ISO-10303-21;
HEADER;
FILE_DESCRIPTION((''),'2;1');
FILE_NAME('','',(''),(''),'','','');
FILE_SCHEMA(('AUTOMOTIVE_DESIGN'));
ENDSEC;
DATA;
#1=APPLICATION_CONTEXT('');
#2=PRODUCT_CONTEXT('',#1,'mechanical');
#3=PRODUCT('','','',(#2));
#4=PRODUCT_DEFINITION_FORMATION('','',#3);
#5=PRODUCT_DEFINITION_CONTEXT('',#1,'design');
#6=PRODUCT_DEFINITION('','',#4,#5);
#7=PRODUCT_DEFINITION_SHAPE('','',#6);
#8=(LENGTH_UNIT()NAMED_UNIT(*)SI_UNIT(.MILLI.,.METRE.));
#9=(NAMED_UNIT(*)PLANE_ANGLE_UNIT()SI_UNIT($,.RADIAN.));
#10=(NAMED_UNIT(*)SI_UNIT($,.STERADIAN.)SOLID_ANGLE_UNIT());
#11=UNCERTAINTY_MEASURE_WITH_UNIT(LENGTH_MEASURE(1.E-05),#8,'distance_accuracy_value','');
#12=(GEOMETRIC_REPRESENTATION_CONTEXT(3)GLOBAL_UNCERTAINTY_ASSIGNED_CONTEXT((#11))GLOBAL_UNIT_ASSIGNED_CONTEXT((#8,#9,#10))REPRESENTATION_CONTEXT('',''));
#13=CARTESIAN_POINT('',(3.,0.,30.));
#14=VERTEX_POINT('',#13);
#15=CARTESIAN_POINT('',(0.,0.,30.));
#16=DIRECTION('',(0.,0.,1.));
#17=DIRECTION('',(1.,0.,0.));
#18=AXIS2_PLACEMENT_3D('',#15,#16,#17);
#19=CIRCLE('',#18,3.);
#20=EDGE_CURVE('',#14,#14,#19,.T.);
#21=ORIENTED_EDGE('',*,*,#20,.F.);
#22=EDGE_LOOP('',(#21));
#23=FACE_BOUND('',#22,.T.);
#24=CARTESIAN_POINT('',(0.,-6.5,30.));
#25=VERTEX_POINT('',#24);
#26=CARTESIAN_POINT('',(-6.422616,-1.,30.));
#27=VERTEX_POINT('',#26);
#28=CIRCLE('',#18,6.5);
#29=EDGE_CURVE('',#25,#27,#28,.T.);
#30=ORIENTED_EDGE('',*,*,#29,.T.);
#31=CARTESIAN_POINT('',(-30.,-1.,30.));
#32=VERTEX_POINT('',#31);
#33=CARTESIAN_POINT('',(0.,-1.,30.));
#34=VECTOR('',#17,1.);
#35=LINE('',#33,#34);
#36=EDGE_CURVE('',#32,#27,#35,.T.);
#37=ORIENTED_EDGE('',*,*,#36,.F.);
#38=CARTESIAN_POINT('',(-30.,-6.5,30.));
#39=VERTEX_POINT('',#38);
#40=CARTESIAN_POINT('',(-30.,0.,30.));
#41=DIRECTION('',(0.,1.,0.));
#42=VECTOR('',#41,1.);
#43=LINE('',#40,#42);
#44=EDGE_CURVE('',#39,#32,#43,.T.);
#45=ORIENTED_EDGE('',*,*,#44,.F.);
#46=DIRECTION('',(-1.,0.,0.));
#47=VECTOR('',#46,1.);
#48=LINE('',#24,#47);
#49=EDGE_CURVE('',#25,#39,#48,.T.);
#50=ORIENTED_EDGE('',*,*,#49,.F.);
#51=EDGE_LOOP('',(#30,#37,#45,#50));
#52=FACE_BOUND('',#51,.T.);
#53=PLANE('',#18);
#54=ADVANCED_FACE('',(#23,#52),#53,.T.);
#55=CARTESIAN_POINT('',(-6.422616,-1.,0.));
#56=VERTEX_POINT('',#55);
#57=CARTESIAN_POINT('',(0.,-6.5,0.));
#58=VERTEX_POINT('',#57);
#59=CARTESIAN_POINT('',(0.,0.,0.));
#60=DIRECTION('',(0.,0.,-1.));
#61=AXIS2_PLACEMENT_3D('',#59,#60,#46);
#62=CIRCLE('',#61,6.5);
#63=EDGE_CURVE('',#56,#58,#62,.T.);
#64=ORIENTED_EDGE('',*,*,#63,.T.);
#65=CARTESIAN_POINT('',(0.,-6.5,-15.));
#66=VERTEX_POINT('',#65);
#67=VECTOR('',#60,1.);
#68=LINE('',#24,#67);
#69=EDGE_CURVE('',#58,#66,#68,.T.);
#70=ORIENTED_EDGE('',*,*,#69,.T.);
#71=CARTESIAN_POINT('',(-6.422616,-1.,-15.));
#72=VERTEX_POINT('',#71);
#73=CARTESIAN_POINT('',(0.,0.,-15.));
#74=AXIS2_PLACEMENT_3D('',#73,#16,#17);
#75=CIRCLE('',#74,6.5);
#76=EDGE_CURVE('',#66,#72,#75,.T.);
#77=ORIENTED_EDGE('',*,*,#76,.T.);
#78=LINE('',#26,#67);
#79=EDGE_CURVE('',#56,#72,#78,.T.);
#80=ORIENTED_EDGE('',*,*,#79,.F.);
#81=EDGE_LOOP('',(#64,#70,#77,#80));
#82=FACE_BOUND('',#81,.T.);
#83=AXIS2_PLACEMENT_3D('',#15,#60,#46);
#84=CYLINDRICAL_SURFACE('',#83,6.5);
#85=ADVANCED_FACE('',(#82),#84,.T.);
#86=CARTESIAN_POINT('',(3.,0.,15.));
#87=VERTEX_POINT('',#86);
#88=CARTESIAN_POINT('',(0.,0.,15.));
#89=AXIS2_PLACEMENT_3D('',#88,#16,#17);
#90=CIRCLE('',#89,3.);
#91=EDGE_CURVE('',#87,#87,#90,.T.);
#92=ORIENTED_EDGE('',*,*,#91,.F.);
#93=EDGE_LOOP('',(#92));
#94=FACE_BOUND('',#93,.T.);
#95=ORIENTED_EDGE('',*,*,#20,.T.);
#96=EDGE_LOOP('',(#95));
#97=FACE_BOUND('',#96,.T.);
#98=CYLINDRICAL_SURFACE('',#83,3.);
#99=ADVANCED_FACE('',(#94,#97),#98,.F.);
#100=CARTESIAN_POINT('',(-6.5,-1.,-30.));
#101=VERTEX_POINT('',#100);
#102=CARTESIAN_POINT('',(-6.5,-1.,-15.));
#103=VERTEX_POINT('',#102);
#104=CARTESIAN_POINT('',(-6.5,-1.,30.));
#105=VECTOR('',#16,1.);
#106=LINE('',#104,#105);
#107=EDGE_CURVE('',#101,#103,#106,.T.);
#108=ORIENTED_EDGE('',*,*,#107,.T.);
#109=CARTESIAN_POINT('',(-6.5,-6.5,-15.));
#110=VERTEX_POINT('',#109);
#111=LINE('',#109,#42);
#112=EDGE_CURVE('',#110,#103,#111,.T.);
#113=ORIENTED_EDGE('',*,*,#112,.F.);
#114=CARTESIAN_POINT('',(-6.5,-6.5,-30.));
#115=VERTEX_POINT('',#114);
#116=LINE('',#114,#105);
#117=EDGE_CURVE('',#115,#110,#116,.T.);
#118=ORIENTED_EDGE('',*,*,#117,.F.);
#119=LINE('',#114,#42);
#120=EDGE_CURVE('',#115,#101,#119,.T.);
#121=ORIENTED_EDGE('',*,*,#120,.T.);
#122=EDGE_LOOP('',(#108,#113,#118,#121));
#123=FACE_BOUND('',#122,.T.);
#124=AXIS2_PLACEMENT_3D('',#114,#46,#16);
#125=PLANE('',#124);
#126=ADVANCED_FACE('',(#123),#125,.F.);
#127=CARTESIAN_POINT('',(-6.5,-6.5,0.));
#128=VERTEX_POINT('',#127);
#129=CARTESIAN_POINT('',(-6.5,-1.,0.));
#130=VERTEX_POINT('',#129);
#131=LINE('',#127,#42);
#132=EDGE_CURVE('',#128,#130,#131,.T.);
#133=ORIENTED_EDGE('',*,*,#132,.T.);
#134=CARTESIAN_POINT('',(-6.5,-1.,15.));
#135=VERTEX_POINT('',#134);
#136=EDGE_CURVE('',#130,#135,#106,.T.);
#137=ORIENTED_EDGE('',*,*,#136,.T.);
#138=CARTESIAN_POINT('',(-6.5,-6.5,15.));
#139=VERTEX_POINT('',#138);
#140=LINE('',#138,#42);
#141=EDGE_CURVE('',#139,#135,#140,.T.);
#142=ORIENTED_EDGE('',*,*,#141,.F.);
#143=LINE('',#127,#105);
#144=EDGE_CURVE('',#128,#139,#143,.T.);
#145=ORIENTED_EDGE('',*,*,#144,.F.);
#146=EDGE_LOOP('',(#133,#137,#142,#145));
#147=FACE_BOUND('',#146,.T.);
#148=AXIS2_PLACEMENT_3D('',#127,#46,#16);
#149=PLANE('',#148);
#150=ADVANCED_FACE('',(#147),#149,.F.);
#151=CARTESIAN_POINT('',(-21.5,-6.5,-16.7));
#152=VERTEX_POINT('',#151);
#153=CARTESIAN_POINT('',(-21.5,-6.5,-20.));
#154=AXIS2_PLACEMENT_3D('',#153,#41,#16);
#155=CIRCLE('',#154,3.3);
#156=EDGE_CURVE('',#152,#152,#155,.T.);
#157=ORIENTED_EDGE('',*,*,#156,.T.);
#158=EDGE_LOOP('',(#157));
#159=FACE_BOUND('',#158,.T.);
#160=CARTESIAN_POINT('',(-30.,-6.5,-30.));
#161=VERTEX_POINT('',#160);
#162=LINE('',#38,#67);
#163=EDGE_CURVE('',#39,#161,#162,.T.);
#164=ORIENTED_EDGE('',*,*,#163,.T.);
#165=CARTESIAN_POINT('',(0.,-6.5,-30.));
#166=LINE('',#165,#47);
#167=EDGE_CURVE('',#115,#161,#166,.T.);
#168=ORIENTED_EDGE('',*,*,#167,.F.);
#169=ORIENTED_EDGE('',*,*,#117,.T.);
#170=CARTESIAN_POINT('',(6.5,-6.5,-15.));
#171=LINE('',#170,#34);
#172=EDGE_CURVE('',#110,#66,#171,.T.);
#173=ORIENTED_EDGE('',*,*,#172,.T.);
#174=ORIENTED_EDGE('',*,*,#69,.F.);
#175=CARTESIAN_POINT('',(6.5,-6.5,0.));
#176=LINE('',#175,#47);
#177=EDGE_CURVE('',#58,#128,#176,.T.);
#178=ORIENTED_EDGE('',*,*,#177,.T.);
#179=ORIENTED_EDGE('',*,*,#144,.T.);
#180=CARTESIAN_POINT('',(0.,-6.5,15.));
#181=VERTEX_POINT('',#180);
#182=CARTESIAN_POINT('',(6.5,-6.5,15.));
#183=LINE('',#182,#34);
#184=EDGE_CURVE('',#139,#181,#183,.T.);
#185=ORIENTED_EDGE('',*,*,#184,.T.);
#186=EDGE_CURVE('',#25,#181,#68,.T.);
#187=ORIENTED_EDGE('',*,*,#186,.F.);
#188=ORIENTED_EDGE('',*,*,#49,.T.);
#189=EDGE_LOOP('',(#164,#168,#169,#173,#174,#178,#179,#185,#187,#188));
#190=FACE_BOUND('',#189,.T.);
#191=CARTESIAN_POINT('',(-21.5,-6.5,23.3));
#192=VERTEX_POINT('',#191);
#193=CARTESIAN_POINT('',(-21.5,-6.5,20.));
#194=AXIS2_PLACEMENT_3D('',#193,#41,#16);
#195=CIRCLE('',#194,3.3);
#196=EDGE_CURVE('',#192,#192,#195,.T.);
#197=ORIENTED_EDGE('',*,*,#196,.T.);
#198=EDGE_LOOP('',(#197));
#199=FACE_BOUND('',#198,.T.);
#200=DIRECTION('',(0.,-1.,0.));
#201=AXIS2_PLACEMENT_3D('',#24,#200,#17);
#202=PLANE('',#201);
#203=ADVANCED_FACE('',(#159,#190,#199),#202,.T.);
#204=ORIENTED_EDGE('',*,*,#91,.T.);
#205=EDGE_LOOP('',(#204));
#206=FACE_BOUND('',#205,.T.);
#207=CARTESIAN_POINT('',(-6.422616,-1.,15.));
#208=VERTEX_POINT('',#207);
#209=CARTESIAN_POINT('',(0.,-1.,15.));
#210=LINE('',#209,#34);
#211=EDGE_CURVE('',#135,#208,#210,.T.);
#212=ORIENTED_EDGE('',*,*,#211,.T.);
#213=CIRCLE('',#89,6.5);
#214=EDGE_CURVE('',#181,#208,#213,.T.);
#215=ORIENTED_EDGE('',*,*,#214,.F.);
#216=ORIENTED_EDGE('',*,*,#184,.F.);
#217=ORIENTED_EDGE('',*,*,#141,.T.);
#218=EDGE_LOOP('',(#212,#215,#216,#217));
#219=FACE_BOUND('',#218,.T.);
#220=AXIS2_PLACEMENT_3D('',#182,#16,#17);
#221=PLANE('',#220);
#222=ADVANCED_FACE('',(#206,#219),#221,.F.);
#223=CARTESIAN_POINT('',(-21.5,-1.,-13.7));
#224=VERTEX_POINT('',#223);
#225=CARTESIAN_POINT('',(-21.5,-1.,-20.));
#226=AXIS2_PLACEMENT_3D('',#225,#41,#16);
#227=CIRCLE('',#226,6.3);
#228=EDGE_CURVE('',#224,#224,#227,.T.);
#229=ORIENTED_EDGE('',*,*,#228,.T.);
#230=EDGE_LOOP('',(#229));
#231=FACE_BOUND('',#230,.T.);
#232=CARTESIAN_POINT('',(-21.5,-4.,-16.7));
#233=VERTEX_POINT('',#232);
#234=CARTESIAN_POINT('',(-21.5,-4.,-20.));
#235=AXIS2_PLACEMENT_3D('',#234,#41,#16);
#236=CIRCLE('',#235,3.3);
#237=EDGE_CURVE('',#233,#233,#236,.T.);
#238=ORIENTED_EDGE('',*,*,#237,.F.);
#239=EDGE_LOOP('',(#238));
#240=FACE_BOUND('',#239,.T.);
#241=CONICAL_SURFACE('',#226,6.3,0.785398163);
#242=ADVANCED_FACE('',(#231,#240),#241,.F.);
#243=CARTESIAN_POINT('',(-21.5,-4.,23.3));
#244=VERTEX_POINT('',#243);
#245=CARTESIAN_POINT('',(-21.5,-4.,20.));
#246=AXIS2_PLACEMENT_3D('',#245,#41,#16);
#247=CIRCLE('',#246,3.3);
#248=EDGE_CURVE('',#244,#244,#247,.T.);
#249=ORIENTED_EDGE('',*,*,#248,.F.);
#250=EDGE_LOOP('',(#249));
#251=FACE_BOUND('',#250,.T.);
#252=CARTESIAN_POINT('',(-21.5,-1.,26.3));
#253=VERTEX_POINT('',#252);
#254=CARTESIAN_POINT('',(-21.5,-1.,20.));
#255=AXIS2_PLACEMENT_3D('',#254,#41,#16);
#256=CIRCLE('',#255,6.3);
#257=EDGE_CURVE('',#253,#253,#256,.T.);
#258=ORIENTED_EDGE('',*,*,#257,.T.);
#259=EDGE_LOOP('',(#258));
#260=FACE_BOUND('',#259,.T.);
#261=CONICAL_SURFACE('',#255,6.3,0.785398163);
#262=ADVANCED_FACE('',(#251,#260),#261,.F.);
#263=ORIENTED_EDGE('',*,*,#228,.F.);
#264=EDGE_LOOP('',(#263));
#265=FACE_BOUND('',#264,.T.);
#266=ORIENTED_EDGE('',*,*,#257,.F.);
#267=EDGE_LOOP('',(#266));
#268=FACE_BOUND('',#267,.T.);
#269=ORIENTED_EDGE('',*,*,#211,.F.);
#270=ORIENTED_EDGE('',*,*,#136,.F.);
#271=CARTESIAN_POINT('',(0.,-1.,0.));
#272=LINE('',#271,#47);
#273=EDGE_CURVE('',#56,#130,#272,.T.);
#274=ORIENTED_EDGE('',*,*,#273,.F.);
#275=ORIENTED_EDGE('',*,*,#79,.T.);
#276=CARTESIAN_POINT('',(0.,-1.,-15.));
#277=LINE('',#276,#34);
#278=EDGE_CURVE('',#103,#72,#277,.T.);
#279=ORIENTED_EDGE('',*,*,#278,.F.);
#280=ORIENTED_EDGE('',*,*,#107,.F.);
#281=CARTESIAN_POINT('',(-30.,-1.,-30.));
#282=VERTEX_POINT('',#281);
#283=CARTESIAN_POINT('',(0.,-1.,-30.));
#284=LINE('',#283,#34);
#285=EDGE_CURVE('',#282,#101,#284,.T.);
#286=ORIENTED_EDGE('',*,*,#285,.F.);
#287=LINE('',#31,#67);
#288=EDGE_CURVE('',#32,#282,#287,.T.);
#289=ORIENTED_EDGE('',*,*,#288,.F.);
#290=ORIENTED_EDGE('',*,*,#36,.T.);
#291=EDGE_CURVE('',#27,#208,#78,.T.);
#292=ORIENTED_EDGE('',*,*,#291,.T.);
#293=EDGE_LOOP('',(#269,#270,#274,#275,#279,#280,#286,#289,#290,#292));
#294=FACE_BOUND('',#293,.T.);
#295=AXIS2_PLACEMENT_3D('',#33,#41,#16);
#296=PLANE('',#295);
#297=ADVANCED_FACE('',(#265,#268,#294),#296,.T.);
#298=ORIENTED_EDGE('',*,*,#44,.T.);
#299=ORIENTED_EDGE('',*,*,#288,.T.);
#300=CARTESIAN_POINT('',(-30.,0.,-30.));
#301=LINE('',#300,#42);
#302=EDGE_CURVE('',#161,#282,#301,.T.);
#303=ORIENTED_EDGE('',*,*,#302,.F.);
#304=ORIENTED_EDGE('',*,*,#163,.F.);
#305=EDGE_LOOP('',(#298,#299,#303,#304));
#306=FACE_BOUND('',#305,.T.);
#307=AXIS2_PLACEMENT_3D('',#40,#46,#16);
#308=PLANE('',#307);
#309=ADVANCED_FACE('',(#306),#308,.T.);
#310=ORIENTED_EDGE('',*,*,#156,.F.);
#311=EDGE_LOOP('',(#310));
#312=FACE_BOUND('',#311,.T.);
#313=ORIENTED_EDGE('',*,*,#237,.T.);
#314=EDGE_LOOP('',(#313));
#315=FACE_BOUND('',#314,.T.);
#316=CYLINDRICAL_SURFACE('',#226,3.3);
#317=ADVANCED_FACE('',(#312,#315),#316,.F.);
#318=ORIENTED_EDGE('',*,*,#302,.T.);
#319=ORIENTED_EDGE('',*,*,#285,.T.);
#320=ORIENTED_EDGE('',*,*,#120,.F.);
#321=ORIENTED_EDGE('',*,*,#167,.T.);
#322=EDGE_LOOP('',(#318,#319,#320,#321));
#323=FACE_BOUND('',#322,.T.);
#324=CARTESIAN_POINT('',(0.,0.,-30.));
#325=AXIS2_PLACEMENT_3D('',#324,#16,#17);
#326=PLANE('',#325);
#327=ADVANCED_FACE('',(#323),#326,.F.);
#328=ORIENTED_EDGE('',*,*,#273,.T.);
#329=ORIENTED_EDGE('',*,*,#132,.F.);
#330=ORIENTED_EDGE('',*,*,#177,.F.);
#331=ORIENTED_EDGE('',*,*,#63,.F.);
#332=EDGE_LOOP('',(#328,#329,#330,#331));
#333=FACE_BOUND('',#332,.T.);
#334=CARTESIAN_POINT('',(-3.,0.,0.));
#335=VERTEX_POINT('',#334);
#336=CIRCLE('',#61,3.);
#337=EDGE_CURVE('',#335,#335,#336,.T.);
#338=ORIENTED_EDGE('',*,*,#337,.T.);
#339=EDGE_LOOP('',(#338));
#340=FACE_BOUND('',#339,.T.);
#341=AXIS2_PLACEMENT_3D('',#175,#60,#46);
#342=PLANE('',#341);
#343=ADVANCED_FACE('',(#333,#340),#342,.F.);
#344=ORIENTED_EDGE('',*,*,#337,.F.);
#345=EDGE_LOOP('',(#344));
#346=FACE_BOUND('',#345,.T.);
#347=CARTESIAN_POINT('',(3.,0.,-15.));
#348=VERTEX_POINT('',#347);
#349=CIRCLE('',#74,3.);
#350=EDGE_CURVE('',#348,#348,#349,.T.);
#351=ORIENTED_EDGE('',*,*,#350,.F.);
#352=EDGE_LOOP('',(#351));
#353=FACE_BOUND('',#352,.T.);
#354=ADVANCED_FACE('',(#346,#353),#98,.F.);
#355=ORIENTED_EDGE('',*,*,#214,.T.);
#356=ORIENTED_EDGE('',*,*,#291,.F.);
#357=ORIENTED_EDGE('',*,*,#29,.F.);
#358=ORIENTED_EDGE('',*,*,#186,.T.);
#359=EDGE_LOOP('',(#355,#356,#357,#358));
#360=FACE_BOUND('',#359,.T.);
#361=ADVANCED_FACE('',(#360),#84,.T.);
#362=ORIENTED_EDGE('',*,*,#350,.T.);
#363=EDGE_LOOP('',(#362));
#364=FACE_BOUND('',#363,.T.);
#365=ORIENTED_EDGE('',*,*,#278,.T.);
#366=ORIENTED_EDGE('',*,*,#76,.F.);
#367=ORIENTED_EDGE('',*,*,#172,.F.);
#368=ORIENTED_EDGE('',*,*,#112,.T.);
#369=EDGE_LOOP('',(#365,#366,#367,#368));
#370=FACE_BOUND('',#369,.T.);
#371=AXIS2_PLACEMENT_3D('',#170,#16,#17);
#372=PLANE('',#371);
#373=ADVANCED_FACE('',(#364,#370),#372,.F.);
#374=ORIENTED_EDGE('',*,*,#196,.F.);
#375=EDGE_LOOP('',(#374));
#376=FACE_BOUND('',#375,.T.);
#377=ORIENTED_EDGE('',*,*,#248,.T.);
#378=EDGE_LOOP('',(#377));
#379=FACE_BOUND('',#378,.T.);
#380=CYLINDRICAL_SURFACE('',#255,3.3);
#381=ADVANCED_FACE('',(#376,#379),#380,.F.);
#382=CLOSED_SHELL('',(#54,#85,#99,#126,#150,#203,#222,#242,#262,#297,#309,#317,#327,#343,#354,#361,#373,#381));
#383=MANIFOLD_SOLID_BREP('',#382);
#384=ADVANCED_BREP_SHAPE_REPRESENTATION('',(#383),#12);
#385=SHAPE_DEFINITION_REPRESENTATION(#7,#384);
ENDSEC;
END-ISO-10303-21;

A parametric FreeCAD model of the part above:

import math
import FreeCAD as App
import Part
import Sketcher
from FreeCAD import Vector
Q = App.Units.Quantity

doc = App.newDocument("Part")
body = doc.addObject("PartDesign::Body", "Body")

# Sketch on XY plane
sketch1 = body.newObject("Sketcher::SketchObject", "Sketch")
sketch1.AttachmentSupport = (doc.getObject("XY_Plane"), [""])
sketch1.MapMode = "FlatFace"
sketch1.addGeometry([
    Part.LineSegment(Vector(-30, -6.5, 0), Vector(0, -6.5, 0)),  # 0
    Part.ArcOfCircle(Part.Circle(Vector(0, 0, 0), Vector(0, 0, 1), 6.5), math.radians(-90), math.radians(188.849883)),  # 1
    Part.LineSegment(Vector(-6.422616, -1, 0), Vector(-30, -1, 0)),  # 2
    Part.LineSegment(Vector(-30, -1, 0), Vector(-30, -6.5, 0)),  # 3
    Part.Circle(Vector(0, 0, 0), Vector(0, 0, 1), 3),  # 4
], False)
sketch1.addConstraint([
    Sketcher.Constraint("Tangent", 0, 2, 1, 1),
    Sketcher.Constraint("Coincident", 1, 2, 2, 1),
    Sketcher.Constraint("Coincident", 2, 2, 3, 1),
    Sketcher.Constraint("Coincident", 3, 2, 0, 1),
    Sketcher.Constraint("Horizontal", 0),
    Sketcher.Constraint("Horizontal", 2),
    Sketcher.Constraint("Vertical", 3),
    Sketcher.Constraint("Coincident", 1, 3, -1, 1),
    Sketcher.Constraint("Coincident", 4, 3, -1, 1),
    Sketcher.Constraint("Diameter", 4, 6.0),
    Sketcher.Constraint("Radius", 1, 6.5),
    Sketcher.Constraint("DistanceX", 0, 1, 0, 2, 30.0),
    Sketcher.Constraint("DistanceY", 3, 2, 3, 1, 5.5),
])
pad1 = body.newObject("PartDesign::Pad", "Pad")
pad1.Profile = sketch1
pad1.Length = 60
pad1.Midplane = True

# Sketch on YZ plane
sketch2 = body.newObject("Sketcher::SketchObject", "Sketch001")
sketch2.AttachmentSupport = (doc.getObject("YZ_Plane"), [""])
sketch2.MapMode = "FlatFace"
sketch2.AttachmentOffset = App.Placement(Vector(0, 0, -21.5), App.Rotation())
sketch2.addGeometry([
    Part.LineSegment(Vector(-6.5, -20, 0), Vector(-1, -20, 0)),  # 0
    Part.LineSegment(Vector(-1, -20, 0), Vector(-1, -13.7, 0)),  # 1
    Part.LineSegment(Vector(-1, -13.7, 0), Vector(-4, -16.7, 0)),  # 2
    Part.LineSegment(Vector(-4, -16.7, 0), Vector(-6.5, -16.7, 0)),  # 3
    Part.LineSegment(Vector(-6.5, -16.7, 0), Vector(-6.5, -20, 0)),  # 4
], False)
sketch2.addGeometry(Part.LineSegment(Vector(-1, -20, 0), Vector(-6.5, -20, 0)), True)  # axis
sketch2.addConstraint([
    Sketcher.Constraint("Coincident", 0, 2, 1, 1),
    Sketcher.Constraint("Coincident", 1, 2, 2, 1),
    Sketcher.Constraint("Coincident", 2, 2, 3, 1),
    Sketcher.Constraint("Coincident", 3, 2, 4, 1),
    Sketcher.Constraint("Coincident", 4, 2, 0, 1),
    Sketcher.Constraint("Horizontal", 0),
    Sketcher.Constraint("Vertical", 1),
    Sketcher.Constraint("Horizontal", 3),
    Sketcher.Constraint("Vertical", 4),
    Sketcher.Constraint("Horizontal", 5),
    Sketcher.Constraint("Coincident", 5, 1, 0, 2),
    Sketcher.Constraint("Vertical", 3, 2, 5, 2),
    Sketcher.Constraint("Angle", 2, Q("-135 deg")),
    Sketcher.Constraint("DistanceX", 0, 1, 0, 2, 5.5),
    Sketcher.Constraint("DistanceX", 3, 2, 3, 1, 2.5),
    Sketcher.Constraint("DistanceY", 1, 1, 1, 2, 6.3),
    Sketcher.Constraint("DistanceX", 0, 2, -1, 1, 1.0),
    Sketcher.Constraint("DistanceY", 0, 2, -1, 1, 20.0),
])
groove = body.newObject("PartDesign::Groove", "Groove")
groove.Profile = sketch2
groove.ReferenceAxis = (sketch2, ["Axis0"])
groove.Angle = 360
doc.recompute()

linearpattern = body.newObject("PartDesign::LinearPattern", "LinearPattern")
linearpattern.Originals = [groove]
linearpattern.Direction = (doc.getObject("Z_Axis"), [""])
linearpattern.Mode = "offset"
linearpattern.Offset = 40
linearpattern.Occurrences = 2
body.Tip = linearpattern

# Sketch on XZ plane
sketch3 = body.newObject("Sketcher::SketchObject", "Sketch002")
sketch3.AttachmentSupport = (doc.getObject("XZ_Plane"), [""])
sketch3.MapMode = "FlatFace"
sketch3.addGeometry([
    Part.LineSegment(Vector(-6.5, -30, 0), Vector(-6.5, -15, 0)),  # 0
    Part.LineSegment(Vector(-6.5, -15, 0), Vector(6.5, -15, 0)),  # 1
    Part.LineSegment(Vector(6.5, -15, 0), Vector(6.5, -30, 0)),  # 2
    Part.LineSegment(Vector(6.5, -30, 0), Vector(-6.5, -30, 0)),  # 3
    Part.LineSegment(Vector(-6.5, 0, 0), Vector(-6.5, 15, 0)),  # 4
    Part.LineSegment(Vector(-6.5, 15, 0), Vector(6.5, 15, 0)),  # 5
    Part.LineSegment(Vector(6.5, 15, 0), Vector(6.5, 0, 0)),  # 6
    Part.LineSegment(Vector(6.5, 0, 0), Vector(-6.5, 0, 0)),  # 7
], False)
sketch3.addConstraint([
    Sketcher.Constraint("Coincident", 0, 2, 1, 1),
    Sketcher.Constraint("Coincident", 1, 2, 2, 1),
    Sketcher.Constraint("Coincident", 2, 2, 3, 1),
    Sketcher.Constraint("Coincident", 3, 2, 0, 1),
    Sketcher.Constraint("Coincident", 4, 2, 5, 1),
    Sketcher.Constraint("Coincident", 5, 2, 6, 1),
    Sketcher.Constraint("Coincident", 6, 2, 7, 1),
    Sketcher.Constraint("Coincident", 7, 2, 4, 1),
    Sketcher.Constraint("Vertical", 0),
    Sketcher.Constraint("Horizontal", 1),
    Sketcher.Constraint("Vertical", 2),
    Sketcher.Constraint("Horizontal", 3),
    Sketcher.Constraint("Vertical", 4),
    Sketcher.Constraint("Horizontal", 5),
    Sketcher.Constraint("Vertical", 6),
    Sketcher.Constraint("Horizontal", 7),
    Sketcher.Constraint("Symmetric", 1, 2, 4, 2, -1, 1),
    Sketcher.Constraint("Symmetric", 6, 2, 7, 2, -1, 1),
    Sketcher.Constraint("Vertical", 3, 2, 4, 2),
    Sketcher.Constraint("Equal", 2, 4),
    Sketcher.Constraint("DistanceX", 1, 1, 1, 2, 13.0),
    Sketcher.Constraint("DistanceY", 0, 1, 0, 2, 15.0),
])
pocket1 = body.newObject("PartDesign::Pocket", "Pocket")
pocket1.Profile = sketch3
pocket1.Type = "ThroughAll"
pocket1.Midplane = True

doc.recompute()
